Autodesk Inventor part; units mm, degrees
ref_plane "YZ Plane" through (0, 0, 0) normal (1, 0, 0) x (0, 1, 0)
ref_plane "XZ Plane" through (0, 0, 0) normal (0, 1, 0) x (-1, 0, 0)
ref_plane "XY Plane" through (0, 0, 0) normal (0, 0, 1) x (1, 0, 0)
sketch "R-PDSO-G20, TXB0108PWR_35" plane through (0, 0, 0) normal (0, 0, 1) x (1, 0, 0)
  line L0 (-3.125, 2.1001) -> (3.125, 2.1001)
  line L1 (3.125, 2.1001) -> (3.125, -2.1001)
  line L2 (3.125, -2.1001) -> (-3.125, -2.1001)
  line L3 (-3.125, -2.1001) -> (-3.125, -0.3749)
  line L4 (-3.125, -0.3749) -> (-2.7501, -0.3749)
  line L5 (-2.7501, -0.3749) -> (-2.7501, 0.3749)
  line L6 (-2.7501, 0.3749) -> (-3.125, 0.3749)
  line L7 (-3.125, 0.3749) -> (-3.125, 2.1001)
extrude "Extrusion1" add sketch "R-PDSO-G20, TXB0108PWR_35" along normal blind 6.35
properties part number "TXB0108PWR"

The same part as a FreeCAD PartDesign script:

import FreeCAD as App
import Part
import Sketcher
from FreeCAD import Vector
Q = App.Units.Quantity

doc = App.newDocument("Part")
body = doc.addObject("PartDesign::Body", "Body")

# Sketch on XY plane
sketch1 = body.newObject("Sketcher::SketchObject", "Sketch")
sketch1.AttachmentSupport = (doc.getObject("XY_Plane"), [""])
sketch1.MapMode = "FlatFace"
sketch1.addGeometry(Part.LineSegment(Vector(3.12, 2.1, 0), Vector(-3.12, 2.1, 0)), False)
sketch1.addGeometry(Part.LineSegment(Vector(-3.12, 2.1, 0), Vector(-3.12, 0.37, 0)), False)
sketch1.addGeometry(Part.LineSegment(Vector(-3.12, 0.37, 0), Vector(-2.75, 0.37, 0)), False)
sketch1.addGeometry(Part.LineSegment(Vector(-2.75, 0.37, 0), Vector(-2.75, -0.37, 0)), False)
sketch1.addGeometry(Part.LineSegment(Vector(-2.75, -0.37, 0), Vector(-3.12, -0.37, 0)), False)
sketch1.addGeometry(Part.LineSegment(Vector(-3.12, -0.37, 0), Vector(-3.12, -2.1, 0)), False)
sketch1.addGeometry(Part.LineSegment(Vector(-3.12, -2.1, 0), Vector(3.12, -2.1, 0)), False)
sketch1.addGeometry(Part.LineSegment(Vector(3.12, -2.1, 0), Vector(3.12, 2.1, 0)), False)
sketch1.addConstraint(Sketcher.Constraint("Coincident", 0, 2, 1, 1))
sketch1.addConstraint(Sketcher.Constraint("Coincident", 1, 2, 2, 1))
sketch1.addConstraint(Sketcher.Constraint("Coincident", 2, 2, 3, 1))
sketch1.addConstraint(Sketcher.Constraint("Coincident", 3, 2, 4, 1))
sketch1.addConstraint(Sketcher.Constraint("Coincident", 4, 2, 5, 1))
sketch1.addConstraint(Sketcher.Constraint("Coincident", 5, 2, 6, 1))
sketch1.addConstraint(Sketcher.Constraint("Coincident", 6, 2, 7, 1))
sketch1.addConstraint(Sketcher.Constraint("Coincident", 7, 2, 0, 1))
sketch1.addConstraint(Sketcher.Constraint("Horizontal", 0))
sketch1.addConstraint(Sketcher.Constraint("Vertical", 1))
sketch1.addConstraint(Sketcher.Constraint("Horizontal", 2))
sketch1.addConstraint(Sketcher.Constraint("Vertical", 3))
sketch1.addConstraint(Sketcher.Constraint("Horizontal", 4))
sketch1.addConstraint(Sketcher.Constraint("Vertical", 5))
sketch1.addConstraint(Sketcher.Constraint("Horizontal", 6))
sketch1.addConstraint(Sketcher.Constraint("Vertical", 7))
sketch1.addConstraint(Sketcher.Constraint("Symmetric", 0, 2, 6, 2, -1, 1))
sketch1.addConstraint(Sketcher.Constraint("Symmetric", 1, 2, 4, 2, -1))
sketch1.addConstraint(Sketcher.Constraint("DistanceX", 0, 2, 0, 1, 6.25))
sketch1.addConstraint(Sketcher.Constraint("DistanceX", 2, 1, 2, 2, 0.375))
sketch1.addConstraint(Sketcher.Constraint("DistanceY", 1, 2, 1, 1, 1.7252))
sketch1.addConstraint(Sketcher.Constraint("DistanceY", 3, 2, 3, 1, 0.7498))
pad1 = body.newObject("PartDesign::Pad", "Pad")
pad1.Profile = sketch1
pad1.Length = Q("0.25 in")

doc.recompute()
